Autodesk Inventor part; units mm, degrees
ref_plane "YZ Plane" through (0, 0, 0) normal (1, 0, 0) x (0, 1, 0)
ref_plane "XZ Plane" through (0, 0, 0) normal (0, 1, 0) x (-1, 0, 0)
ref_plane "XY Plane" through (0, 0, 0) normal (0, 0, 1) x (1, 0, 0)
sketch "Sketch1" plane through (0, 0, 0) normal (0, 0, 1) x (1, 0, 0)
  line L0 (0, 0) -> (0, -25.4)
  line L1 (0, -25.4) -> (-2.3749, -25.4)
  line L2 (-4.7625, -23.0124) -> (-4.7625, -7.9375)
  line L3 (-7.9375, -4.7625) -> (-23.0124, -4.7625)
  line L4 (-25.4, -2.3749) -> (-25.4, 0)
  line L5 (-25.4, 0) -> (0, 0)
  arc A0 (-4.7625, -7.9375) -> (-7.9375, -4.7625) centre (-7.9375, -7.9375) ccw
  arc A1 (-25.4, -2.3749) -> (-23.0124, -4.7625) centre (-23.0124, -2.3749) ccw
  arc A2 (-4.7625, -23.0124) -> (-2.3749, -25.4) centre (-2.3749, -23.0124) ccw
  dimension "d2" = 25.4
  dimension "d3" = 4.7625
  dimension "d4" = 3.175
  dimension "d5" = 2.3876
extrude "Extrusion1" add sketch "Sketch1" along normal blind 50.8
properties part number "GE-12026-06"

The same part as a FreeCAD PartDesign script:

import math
import FreeCAD as App
import Part
import Sketcher
from FreeCAD import Vector
Q = App.Units.Quantity

doc = App.newDocument("Part")
params = doc.addObject("Spreadsheet::Sheet", "Params")
for row, (alias, value) in enumerate([
    ("sketch1_width", "1 in"),
    ("sketch1_radius", "0.094 in"),
    ("sketch1_radius2", "0.125 in"),
    ("pad1_length", "2 in"),
], start=1):
    params.set(f"A{row}", alias)
    params.set(f"B{row}", "=" + value)
    params.setAlias(f"B{row}", alias)

body = doc.addObject("PartDesign::Body", "Body")

# Sketch on XY plane
sketch1 = body.newObject("Sketcher::SketchObject", "Sketch")
sketch1.AttachmentSupport = (doc.getObject("XY_Plane"), [""])
sketch1.MapMode = "FlatFace"
sketch1.addGeometry([
    Part.LineSegment(Vector(0, -25.4, 0), Vector(0, 0, 0)),  # 0
    Part.LineSegment(Vector(0, 0, 0), Vector(-25.4, 0, 0)),  # 1
    Part.LineSegment(Vector(-25.4, 0, 0), Vector(-25.4, -2.4, 0)),  # 2
    Part.ArcOfCircle(Part.Circle(Vector(-23, -2.4, 0), Vector(0, 0, 1), 2.4), math.radians(180), math.radians(270)),  # 3
    Part.LineSegment(Vector(-23, -4.8, 0), Vector(-7.9, -4.8, 0)),  # 4
    Part.ArcOfCircle(Part.Circle(Vector(-7.9, -7.9, 0), Vector(0, 0, 1), 3.2), math.radians(0), math.radians(90)),  # 5
    Part.LineSegment(Vector(-4.8, -7.9, 0), Vector(-4.8, -23, 0)),  # 6
    Part.ArcOfCircle(Part.Circle(Vector(-2.4, -23, 0), Vector(0, 0, 1), 2.4), math.radians(180), math.radians(270)),  # 7
    Part.LineSegment(Vector(-2.4, -25.4, 0), Vector(0, -25.4, 0)),  # 8
], False)
sketch1.addConstraint([
    Sketcher.Constraint("Coincident", 0, 2, 1, 1),
    Sketcher.Constraint("Coincident", 1, 2, 2, 1),
    Sketcher.Constraint("Tangent", 2, 2, 3, 1),
    Sketcher.Constraint("Tangent", 3, 2, 4, 1),
    Sketcher.Constraint("Tangent", 4, 2, 5, 2),
    Sketcher.Constraint("Tangent", 5, 1, 6, 1),
    Sketcher.Constraint("Tangent", 6, 2, 7, 1),
    Sketcher.Constraint("Tangent", 7, 2, 8, 1),
    Sketcher.Constraint("Coincident", 8, 2, 0, 1),
    Sketcher.Constraint("Vertical", 0),
    Sketcher.Constraint("Horizontal", 1),
    Sketcher.Constraint("Vertical", 2),
    Sketcher.Constraint("Horizontal", 4),
    Sketcher.Constraint("Vertical", 6),
    Sketcher.Constraint("Horizontal", 8),
    Sketcher.Constraint("Coincident", 0, 2, -1, 1),
    Sketcher.Constraint("Equal", 3, 7),
    Sketcher.Constraint("Equal", 1, 0),
    Sketcher.Constraint("Equal", 8, 2),
    Sketcher.Constraint("DistanceX", 1, 2, 1, 1, Q("1 in")),
    Sketcher.Constraint("Radius", 3, Q("0.094 in")),
    Sketcher.Constraint("Radius", 5, Q("0.125 in")),
    Sketcher.Constraint("DistanceY", 3, 2, -1, 1, Q("0.1875 in")),
])
sketch1.setExpression("Constraints[19]", "Params.sketch1_width")
sketch1.setExpression("Constraints[20]", "Params.sketch1_radius")
sketch1.setExpression("Constraints[21]", "Params.sketch1_radius2")
pad1 = body.newObject("PartDesign::Pad", "Pad")
pad1.Profile = sketch1
pad1.setExpression("Length", "Params.pad1_length")

doc.recompute()
